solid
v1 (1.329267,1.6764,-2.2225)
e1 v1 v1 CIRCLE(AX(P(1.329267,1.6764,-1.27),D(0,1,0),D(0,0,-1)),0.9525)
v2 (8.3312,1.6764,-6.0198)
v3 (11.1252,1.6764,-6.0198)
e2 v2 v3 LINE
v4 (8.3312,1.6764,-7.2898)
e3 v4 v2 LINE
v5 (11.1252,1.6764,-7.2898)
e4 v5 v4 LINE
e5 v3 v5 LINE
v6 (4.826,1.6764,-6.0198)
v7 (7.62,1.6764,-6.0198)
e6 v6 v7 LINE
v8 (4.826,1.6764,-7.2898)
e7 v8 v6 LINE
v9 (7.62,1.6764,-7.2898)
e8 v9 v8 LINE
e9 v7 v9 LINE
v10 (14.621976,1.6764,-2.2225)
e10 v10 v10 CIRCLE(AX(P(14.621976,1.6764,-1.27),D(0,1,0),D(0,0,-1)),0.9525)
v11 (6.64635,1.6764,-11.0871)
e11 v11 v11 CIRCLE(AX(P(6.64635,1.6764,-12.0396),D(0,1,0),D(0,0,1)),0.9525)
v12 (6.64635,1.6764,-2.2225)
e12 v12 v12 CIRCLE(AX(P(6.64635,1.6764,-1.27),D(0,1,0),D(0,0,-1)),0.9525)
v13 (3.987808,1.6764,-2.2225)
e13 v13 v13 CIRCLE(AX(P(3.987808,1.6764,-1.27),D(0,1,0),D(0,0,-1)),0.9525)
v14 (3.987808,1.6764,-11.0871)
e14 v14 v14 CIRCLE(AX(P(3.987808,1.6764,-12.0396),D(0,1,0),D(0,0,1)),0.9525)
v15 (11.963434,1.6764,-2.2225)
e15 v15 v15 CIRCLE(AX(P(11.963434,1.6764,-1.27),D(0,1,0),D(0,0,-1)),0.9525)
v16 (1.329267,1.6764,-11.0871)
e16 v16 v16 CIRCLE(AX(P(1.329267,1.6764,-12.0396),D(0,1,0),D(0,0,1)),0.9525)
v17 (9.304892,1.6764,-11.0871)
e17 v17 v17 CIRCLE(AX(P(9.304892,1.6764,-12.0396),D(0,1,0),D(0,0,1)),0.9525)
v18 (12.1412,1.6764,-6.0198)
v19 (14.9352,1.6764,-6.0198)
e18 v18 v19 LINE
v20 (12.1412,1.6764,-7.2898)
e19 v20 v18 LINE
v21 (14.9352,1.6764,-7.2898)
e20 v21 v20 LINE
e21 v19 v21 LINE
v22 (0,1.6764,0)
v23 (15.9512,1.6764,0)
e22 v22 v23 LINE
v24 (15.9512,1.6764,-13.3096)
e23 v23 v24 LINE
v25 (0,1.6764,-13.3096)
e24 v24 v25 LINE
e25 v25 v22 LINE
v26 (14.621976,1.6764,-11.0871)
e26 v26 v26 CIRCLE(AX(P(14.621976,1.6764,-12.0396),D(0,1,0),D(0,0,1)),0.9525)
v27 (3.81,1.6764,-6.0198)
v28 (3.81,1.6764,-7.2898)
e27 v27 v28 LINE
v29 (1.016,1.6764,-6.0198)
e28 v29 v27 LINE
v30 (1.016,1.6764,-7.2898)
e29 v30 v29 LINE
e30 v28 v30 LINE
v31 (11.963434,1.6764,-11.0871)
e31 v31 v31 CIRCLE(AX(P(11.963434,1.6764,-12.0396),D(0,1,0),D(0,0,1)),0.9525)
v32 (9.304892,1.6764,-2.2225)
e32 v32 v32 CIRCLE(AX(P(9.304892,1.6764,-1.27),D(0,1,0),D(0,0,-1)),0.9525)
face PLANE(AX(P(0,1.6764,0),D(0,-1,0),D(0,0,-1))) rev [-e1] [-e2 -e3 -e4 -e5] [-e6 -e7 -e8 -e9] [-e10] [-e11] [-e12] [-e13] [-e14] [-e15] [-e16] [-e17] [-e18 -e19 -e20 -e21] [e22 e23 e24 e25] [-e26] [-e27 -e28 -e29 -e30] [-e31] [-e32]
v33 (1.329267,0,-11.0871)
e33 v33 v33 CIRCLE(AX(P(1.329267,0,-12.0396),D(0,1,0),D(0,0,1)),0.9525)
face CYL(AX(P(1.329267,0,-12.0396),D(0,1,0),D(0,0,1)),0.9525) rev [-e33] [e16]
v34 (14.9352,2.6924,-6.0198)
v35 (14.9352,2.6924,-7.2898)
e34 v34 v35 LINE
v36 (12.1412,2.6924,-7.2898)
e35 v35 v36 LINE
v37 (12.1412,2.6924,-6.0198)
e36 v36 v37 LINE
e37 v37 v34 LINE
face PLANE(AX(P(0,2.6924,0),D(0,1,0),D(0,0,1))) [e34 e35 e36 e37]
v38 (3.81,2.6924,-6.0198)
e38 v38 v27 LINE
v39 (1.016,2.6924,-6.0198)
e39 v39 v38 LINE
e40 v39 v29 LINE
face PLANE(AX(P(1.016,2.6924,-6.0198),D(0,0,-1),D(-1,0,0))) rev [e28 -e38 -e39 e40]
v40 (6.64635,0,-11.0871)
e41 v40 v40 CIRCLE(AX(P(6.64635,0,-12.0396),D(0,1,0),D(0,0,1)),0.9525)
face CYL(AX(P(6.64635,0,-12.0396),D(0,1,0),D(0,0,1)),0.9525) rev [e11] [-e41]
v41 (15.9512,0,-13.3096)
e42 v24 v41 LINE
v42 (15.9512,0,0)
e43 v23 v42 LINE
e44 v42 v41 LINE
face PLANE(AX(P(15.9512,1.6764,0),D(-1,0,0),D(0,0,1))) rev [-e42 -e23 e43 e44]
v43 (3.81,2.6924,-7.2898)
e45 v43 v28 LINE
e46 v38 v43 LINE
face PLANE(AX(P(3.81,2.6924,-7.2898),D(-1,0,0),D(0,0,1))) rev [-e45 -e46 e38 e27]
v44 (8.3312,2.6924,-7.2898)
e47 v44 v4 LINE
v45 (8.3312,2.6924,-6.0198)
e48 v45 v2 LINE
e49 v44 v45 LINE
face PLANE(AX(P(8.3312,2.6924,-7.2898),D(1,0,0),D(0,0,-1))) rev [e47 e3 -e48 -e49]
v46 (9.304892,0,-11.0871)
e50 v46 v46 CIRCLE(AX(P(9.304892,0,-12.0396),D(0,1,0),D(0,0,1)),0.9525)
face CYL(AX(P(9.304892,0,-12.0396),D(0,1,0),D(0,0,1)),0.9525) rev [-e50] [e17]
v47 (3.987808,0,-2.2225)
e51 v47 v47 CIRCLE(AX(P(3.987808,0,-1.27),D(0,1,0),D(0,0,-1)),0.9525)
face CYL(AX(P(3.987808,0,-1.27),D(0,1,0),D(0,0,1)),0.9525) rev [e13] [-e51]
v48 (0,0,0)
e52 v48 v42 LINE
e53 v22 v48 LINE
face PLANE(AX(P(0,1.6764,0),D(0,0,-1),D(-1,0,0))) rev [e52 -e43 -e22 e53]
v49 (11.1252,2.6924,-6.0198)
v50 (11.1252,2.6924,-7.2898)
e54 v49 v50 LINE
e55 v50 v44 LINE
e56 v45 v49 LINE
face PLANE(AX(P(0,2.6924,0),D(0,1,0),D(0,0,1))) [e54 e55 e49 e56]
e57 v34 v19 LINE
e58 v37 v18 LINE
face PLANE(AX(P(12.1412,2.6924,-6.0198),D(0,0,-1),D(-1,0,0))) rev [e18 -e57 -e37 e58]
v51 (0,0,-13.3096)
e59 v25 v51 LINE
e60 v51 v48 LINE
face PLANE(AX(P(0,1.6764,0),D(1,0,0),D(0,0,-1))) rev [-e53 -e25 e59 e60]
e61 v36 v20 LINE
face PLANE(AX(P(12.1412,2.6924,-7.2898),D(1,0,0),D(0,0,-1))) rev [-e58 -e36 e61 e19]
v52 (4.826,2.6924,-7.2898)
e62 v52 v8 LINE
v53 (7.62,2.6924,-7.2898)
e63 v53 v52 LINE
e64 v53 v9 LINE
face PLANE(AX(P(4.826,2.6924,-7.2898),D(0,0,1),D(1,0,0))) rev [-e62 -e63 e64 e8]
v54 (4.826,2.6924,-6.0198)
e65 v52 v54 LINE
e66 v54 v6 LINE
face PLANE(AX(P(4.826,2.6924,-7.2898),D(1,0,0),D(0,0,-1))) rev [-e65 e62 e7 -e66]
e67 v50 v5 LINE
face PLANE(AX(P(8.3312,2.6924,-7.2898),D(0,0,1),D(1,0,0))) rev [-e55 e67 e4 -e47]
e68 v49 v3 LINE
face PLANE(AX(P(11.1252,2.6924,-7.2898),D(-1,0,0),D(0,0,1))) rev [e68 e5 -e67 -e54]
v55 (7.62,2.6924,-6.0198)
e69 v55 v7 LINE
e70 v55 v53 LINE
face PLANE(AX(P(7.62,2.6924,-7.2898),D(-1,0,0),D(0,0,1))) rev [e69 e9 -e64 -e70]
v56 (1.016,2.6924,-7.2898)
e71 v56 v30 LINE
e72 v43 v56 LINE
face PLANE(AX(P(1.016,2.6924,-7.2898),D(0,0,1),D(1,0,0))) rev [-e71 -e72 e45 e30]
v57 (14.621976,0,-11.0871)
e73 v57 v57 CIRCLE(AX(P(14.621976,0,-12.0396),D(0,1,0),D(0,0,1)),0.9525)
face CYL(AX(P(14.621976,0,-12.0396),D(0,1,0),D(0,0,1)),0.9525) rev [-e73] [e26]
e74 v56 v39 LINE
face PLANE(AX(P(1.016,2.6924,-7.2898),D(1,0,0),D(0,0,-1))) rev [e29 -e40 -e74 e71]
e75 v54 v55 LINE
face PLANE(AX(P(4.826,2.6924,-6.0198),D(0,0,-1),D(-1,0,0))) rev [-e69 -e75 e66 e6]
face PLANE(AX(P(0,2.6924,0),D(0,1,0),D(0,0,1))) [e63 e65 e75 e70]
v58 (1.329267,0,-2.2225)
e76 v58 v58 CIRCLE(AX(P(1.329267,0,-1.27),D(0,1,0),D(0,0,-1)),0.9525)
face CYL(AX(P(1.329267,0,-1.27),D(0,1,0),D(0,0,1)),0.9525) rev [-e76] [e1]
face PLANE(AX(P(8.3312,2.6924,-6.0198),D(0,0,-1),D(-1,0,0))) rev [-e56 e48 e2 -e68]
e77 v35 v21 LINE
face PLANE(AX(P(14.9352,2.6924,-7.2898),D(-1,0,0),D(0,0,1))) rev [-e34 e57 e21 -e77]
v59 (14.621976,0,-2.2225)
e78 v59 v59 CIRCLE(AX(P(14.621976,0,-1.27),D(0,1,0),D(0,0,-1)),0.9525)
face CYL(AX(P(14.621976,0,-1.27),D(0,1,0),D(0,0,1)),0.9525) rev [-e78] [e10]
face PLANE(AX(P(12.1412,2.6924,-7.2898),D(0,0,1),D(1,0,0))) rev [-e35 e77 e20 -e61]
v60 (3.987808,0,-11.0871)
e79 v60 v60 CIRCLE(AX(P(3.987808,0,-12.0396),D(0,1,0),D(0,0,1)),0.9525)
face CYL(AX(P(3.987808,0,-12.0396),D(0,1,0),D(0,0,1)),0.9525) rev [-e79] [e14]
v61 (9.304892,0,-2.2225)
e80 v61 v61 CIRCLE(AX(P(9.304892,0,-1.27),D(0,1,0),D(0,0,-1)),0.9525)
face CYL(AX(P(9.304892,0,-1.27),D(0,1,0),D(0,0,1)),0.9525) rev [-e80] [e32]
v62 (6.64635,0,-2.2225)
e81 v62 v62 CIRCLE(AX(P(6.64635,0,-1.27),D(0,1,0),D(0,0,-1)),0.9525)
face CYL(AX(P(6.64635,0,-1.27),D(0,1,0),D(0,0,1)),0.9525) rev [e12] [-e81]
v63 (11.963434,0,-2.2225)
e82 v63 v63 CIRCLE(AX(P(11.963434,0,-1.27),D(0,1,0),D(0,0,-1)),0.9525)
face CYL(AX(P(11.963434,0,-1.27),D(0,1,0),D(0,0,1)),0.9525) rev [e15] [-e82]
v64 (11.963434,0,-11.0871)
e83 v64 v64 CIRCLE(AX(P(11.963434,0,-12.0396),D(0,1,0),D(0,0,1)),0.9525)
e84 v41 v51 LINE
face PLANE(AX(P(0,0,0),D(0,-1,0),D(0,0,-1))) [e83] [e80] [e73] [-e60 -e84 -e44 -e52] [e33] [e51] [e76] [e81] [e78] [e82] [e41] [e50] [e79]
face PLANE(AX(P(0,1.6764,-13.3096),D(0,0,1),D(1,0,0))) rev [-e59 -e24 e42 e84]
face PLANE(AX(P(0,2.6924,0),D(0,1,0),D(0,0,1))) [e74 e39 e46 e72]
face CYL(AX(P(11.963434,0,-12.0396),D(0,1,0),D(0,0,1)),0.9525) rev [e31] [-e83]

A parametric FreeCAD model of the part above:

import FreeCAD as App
import Part
import Sketcher
from FreeCAD import Vector
Q = App.Units.Quantity


def add_polygon(sketch, points):
    """Adds a closed chain of lines whose ends are joined by coincident constraints."""
    first, n = sketch.GeometryCount, len(points)
    for a, b in zip(points, points[1:] + points[:1]):
        sketch.addGeometry(Part.LineSegment(App.Vector(*a, 0), App.Vector(*b, 0)), False)
    for i in range(n):
        sketch.addConstraint(Sketcher.Constraint("Coincident", first + i, 2, first + (i + 1) % n, 1))

doc = App.newDocument("Part")
params = doc.addObject("Spreadsheet::Sheet", "Params")
for row, (alias, value) in enumerate([
    ("sketch1_width", "0.628 in"),
    ("sketch1_height", "0.524 in"),
    ("pad1_length", "0.066 in"),
    ("sketch2_width", "0.11 in"),
    ("sketch2_height", "0.05 in"),
    ("pad2_length", "0.04 in"),
    ("sketch3_diameter", "0.075 in"),
], start=1):
    params.set(f"A{row}", alias)
    params.set(f"B{row}", "=" + value)
    params.setAlias(f"B{row}", alias)

body = doc.addObject("PartDesign::Body", "Body")

sketch1 = body.newObject("Sketcher::SketchObject", "Sketch")
sketch1.AttachmentSupport = (doc.getObject("XZ_Plane"), [""])
sketch1.MapMode = "FlatFace"
add_polygon(sketch1, [(0, -13), (0, 0), (16, 0), (16, -13)])
sketch1.addConstraint(Sketcher.Constraint("Vertical", 0))
sketch1.addConstraint(Sketcher.Constraint("Horizontal", 1))
sketch1.addConstraint(Sketcher.Constraint("Vertical", 2))
sketch1.addConstraint(Sketcher.Constraint("Horizontal", 3))
sketch1.addConstraint(Sketcher.Constraint("Coincident", 0, 2, -1, 1))
sketch1.addConstraint(Sketcher.Constraint("DistanceX", 1, 1, 1, 2, Q("0.628 in")))
sketch1.addConstraint(Sketcher.Constraint("DistanceY", 0, 1, 0, 2, Q("0.524 in")))
sketch1.setExpression("Constraints[9]", "Params.sketch1_width")
sketch1.setExpression("Constraints[10]", "Params.sketch1_height")
pad1 = body.newObject("PartDesign::Pad", "Pad")
pad1.Profile = sketch1
pad1.setExpression("Length", "Params.pad1_length")
pad1.Reversed = True

sketch2 = body.newObject("Sketcher::SketchObject", "Sketch001")
sketch2.AttachmentSupport = (doc.getObject("XZ_Plane"), [""])
sketch2.MapMode = "FlatFace"
sketch2.AttachmentOffset = App.Placement(Vector(0, 0, -0.066 * 25.4), App.Rotation())
add_polygon(sketch2, [(1, -7.3), (1, -6), (3.8, -6), (3.8, -7.3)])
add_polygon(sketch2, [(4.8, -7.3), (4.8, -6), (7.6, -6), (7.6, -7.3)])
add_polygon(sketch2, [(8.3, -7.3), (8.3, -6), (11.1, -6), (11.1, -7.3)])
add_polygon(sketch2, [(12.1, -7.3), (12.1, -6), (14.9, -6), (14.9, -7.3)])
sketch2.addConstraint(Sketcher.Constraint("Vertical", 0))
sketch2.addConstraint(Sketcher.Constraint("Horizontal", 1))
sketch2.addConstraint(Sketcher.Constraint("Vertical", 2))
sketch2.addConstraint(Sketcher.Constraint("Horizontal", 3))
sketch2.addConstraint(Sketcher.Constraint("Vertical", 4))
sketch2.addConstraint(Sketcher.Constraint("Horizontal", 5))
sketch2.addConstraint(Sketcher.Constraint("Vertical", 6))
sketch2.addConstraint(Sketcher.Constraint("Horizontal", 7))
sketch2.addConstraint(Sketcher.Constraint("Vertical", 8))
sketch2.addConstraint(Sketcher.Constraint("Horizontal", 9))
sketch2.addConstraint(Sketcher.Constraint("Vertical", 10))
sketch2.addConstraint(Sketcher.Constraint("Horizontal", 11))
sketch2.addConstraint(Sketcher.Constraint("Vertical", 12))
sketch2.addConstraint(Sketcher.Constraint("Horizontal", 13))
sketch2.addConstraint(Sketcher.Constraint("Vertical", 14))
sketch2.addConstraint(Sketcher.Constraint("Horizontal", 15))
sketch2.addConstraint(Sketcher.Constraint("Horizontal", 1, 2, 4, 2))
sketch2.addConstraint(Sketcher.Constraint("Horizontal", 3, 2, 6, 2))
sketch2.addConstraint(Sketcher.Constraint("Horizontal", 5, 2, 8, 2))
sketch2.addConstraint(Sketcher.Constraint("Horizontal", 7, 2, 10, 2))
sketch2.addConstraint(Sketcher.Constraint("Horizontal", 9, 2, 12, 2))
sketch2.addConstraint(Sketcher.Constraint("Horizontal", 11, 2, 14, 2))
sketch2.addConstraint(Sketcher.Constraint("Equal", 3, 5))
sketch2.addConstraint(Sketcher.Constraint("Equal", 7, 9))
sketch2.addConstraint(Sketcher.Constraint("Equal", 11, 13))
sketch2.addConstraint(Sketcher.Constraint("DistanceX", 1, 1, 1, 2, Q("0.11 in")))
sketch2.addConstraint(Sketcher.Constraint("DistanceY", 0, 1, 0, 2, Q("0.05 in")))
sketch2.addConstraint(Sketcher.Constraint("DistanceX", -1, 1, 5, 2, Q("0.3 in")))
sketch2.addConstraint(Sketcher.Constraint("DistanceX", -1, 1, 0, 2, Q("0.04 in")))
sketch2.addConstraint(Sketcher.Constraint("DistanceX", 9, 2, 12, 2, Q("0.04 in")))
sketch2.addConstraint(Sketcher.Constraint("DistanceY", 0, 2, -1, 1, Q("0.237 in")))
sketch2.addConstraint(Sketcher.Constraint("DistanceX", -1, 1, 8, 2, Q("0.328 in")))
sketch2.setExpression("Constraints[41]", "Params.sketch2_width")
sketch2.setExpression("Constraints[42]", "Params.sketch2_height")
pad2 = body.newObject("PartDesign::Pad", "Pad001")
pad2.Profile = sketch2
pad2.setExpression("Length", "Params.pad2_length")
pad2.Reversed = True

sketch3 = body.newObject("Sketcher::SketchObject", "Sketch002")
sketch3.AttachmentSupport = (doc.getObject("XZ_Plane"), [""])
sketch3.MapMode = "FlatFace"
sketch3.AttachmentOffset = App.Placement(Vector(0, 0, -0.066 * 25.4), App.Rotation())
sketch3.addGeometry(Part.Circle(Vector(1.3, -12, 0), Vector(0, 0, 1), 1), False)
sketch3.addGeometry(Part.Circle(Vector(4, -12, 0), Vector(0, 0, 1), 1), False)
sketch3.addGeometry(Part.Circle(Vector(6.6, -12, 0), Vector(0, 0, 1), 1), False)
sketch3.addGeometry(Part.Circle(Vector(9.3, -12, 0), Vector(0, 0, 1), 1), False)
sketch3.addGeometry(Part.Circle(Vector(12, -12, 0), Vector(0, 0, 1), 1), False)
sketch3.addGeometry(Part.Circle(Vector(14.6, -12, 0), Vector(0, 0, 1), 1), False)
sketch3.addGeometry(Part.Circle(Vector(14.6, -1.3, 0), Vector(0, 0, 1), 1), False)
sketch3.addGeometry(Part.Circle(Vector(12, -1.3, 0), Vector(0, 0, 1), 1), False)
sketch3.addGeometry(Part.Circle(Vector(9.3, -1.3, 0), Vector(0, 0, 1), 1), False)
sketch3.addGeometry(Part.Circle(Vector(6.6, -1.3, 0), Vector(0, 0, 1), 1), False)
sketch3.addGeometry(Part.Circle(Vector(4, -1.3, 0), Vector(0, 0, 1), 1), False)
sketch3.addGeometry(Part.Circle(Vector(1.3, -1.3, 0), Vector(0, 0, 1), 1), False)
sketch3.addConstraint(Sketcher.Constraint("Equal", 0, 1))
sketch3.addConstraint(Sketcher.Constraint("Equal", 1, 2))
sketch3.addConstraint(Sketcher.Constraint("Equal", 2, 3))
sketch3.addConstraint(Sketcher.Constraint("Equal", 3, 4))
sketch3.addConstraint(Sketcher.Constraint("Equal", 4, 5))
sketch3.addConstraint(Sketcher.Constraint("Equal", 5, 6))
sketch3.addConstraint(Sketcher.Constraint("Equal", 6, 7))
sketch3.addConstraint(Sketcher.Constraint("Equal", 7, 8))
sketch3.addConstraint(Sketcher.Constraint("Equal", 8, 9))
sketch3.addConstraint(Sketcher.Constraint("Equal", 9, 10))
sketch3.addConstraint(Sketcher.Constraint("Equal", 10, 11))
sketch3.addConstraint(Sketcher.Constraint("Horizontal", 0, 3, 1, 3))
sketch3.addConstraint(Sketcher.Constraint("Horizontal", 1, 3, 2, 3))
sketch3.addConstraint(Sketcher.Constraint("Horizontal", 2, 3, 3, 3))
sketch3.addConstraint(Sketcher.Constraint("Horizontal", 3, 3, 4, 3))
sketch3.addConstraint(Sketcher.Constraint("Horizontal", 4, 3, 5, 3))
sketch3.addConstraint(Sketcher.Constraint("Horizontal", 6, 3, 7, 3))
sketch3.addConstraint(Sketcher.Constraint("Horizontal", 7, 3, 8, 3))
sketch3.addConstraint(Sketcher.Constraint("Horizontal", 8, 3, 9, 3))
sketch3.addConstraint(Sketcher.Constraint("Horizontal", 9, 3, 10, 3))
sketch3.addConstraint(Sketcher.Constraint("Horizontal", 10, 3, 11, 3))
sketch3.addConstraint(Sketcher.Constraint("Vertical", 5, 3, 6, 3))
sketch3.addConstraint(Sketcher.Constraint("Vertical", 4, 3, 7, 3))
sketch3.addConstraint(Sketcher.Constraint("Vertical", 3, 3, 8, 3))
sketch3.addConstraint(Sketcher.Constraint("Vertical", 2, 3, 9, 3))
sketch3.addConstraint(Sketcher.Constraint("Vertical", 1, 3, 10, 3))
sketch3.addConstraint(Sketcher.Constraint("Vertical", 0, 3, 11, 3))
sketch3.addConstraint(Sketcher.Constraint("Diameter", 0, Q("0.075 in")))
sketch3.addConstraint(Sketcher.Constraint("DistanceY", 6, 3, -1, 1, Q("0.05 in")))
sketch3.addConstraint(Sketcher.Constraint("DistanceY", 0, 3, -1, 1, Q("0.474 in")))
sketch3.addConstraint(Sketcher.Constraint("DistanceX", -1, 1, 1, 3, 3.987808))
sketch3.addConstraint(Sketcher.Constraint("DistanceX", -1, 1, 2, 3, 6.64635))
sketch3.addConstraint(Sketcher.Constraint("DistanceX", 0, 3, 1, 3, 2.658542))
sketch3.addConstraint(Sketcher.Constraint("DistanceX", 2, 3, 3, 3, 2.658542))
sketch3.addConstraint(Sketcher.Constraint("DistanceX", 3, 3, 4, 3, 2.658542))
sketch3.addConstraint(Sketcher.Constraint("DistanceX", 4, 3, 5, 3, 2.658542))
sketch3.setExpression("Constraints[27]", "Params.sketch3_diameter")
pocket1 = body.newObject("PartDesign::Pocket", "Pocket")
pocket1.Profile = sketch3
pocket1.Type = "ThroughAll"
pocket1.Reversed = True

doc.recompute()
